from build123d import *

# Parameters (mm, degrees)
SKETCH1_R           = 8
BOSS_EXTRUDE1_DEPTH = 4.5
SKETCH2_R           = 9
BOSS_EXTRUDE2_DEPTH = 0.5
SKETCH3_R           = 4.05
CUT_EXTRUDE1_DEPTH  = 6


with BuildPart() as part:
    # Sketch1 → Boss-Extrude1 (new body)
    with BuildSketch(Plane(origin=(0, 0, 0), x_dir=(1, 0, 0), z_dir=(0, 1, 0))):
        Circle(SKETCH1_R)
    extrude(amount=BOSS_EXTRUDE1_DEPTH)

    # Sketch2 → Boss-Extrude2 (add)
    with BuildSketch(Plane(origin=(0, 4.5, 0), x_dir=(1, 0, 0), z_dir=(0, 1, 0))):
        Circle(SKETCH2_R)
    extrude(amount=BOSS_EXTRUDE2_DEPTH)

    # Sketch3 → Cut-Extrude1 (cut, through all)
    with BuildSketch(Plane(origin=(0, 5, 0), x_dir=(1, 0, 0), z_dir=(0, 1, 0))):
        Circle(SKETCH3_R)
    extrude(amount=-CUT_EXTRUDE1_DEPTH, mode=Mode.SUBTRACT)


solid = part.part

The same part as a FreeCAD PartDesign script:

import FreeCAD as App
import Part
import Sketcher

V = App.Vector

doc = App.newDocument("Part")
body = doc.addObject("PartDesign::Body", "Body")

# Sketch on XZ plane
sketch1 = body.newObject("Sketcher::SketchObject", "Sketch")
sketch1.AttachmentSupport = (doc.getObject("XZ_Plane"), [""])
sketch1.MapMode = "FlatFace"
sketch1.addGeometry(Part.Circle(V(0, 0, 0), V(0, 0, 1), 8), False)
sketch1.addConstraint([
    Sketcher.Constraint("Coincident", 0, 3, -1, 1),
    Sketcher.Constraint("Diameter", 0, 16.0),
])
pad1 = body.newObject("PartDesign::Pad", "Pad")
pad1.Profile = sketch1
pad1.Length = 4.5
pad1.Reversed = True

# Sketch on XZ plane
sketch2 = body.newObject("Sketcher::SketchObject", "Sketch001")
sketch2.AttachmentSupport = (doc.getObject("XZ_Plane"), [""])
sketch2.MapMode = "FlatFace"
sketch2.AttachmentOffset = App.Placement(V(0, 0, -4.5), App.Rotation())
sketch2.addGeometry(Part.Circle(V(0, 0, 0), V(0, 0, 1), 9), False)
sketch2.addConstraint([
    Sketcher.Constraint("Coincident", 0, 3, -1, 1),
    Sketcher.Constraint("Diameter", 0, 18.0),
])
pad2 = body.newObject("PartDesign::Pad", "Pad001")
pad2.Profile = sketch2
pad2.Length = 0.5
pad2.Reversed = True

# Sketch on XZ plane
sketch3 = body.newObject("Sketcher::SketchObject", "Sketch002")
sketch3.AttachmentSupport = (doc.getObject("XZ_Plane"), [""])
sketch3.MapMode = "FlatFace"
sketch3.AttachmentOffset = App.Placement(V(0, 0, -5), App.Rotation())
sketch3.addGeometry(Part.Circle(V(0, 0, 0), V(0, 0, 1), 4), False)
sketch3.addConstraint([
    Sketcher.Constraint("Coincident", 0, 3, -1, 1),
    Sketcher.Constraint("Diameter", 0, 8.1),
])
pocket1 = body.newObject("PartDesign::Pocket", "Pocket")
pocket1.Profile = sketch3
pocket1.Type = "ThroughAll"
pocket1.Reversed = True

doc.recompute()
